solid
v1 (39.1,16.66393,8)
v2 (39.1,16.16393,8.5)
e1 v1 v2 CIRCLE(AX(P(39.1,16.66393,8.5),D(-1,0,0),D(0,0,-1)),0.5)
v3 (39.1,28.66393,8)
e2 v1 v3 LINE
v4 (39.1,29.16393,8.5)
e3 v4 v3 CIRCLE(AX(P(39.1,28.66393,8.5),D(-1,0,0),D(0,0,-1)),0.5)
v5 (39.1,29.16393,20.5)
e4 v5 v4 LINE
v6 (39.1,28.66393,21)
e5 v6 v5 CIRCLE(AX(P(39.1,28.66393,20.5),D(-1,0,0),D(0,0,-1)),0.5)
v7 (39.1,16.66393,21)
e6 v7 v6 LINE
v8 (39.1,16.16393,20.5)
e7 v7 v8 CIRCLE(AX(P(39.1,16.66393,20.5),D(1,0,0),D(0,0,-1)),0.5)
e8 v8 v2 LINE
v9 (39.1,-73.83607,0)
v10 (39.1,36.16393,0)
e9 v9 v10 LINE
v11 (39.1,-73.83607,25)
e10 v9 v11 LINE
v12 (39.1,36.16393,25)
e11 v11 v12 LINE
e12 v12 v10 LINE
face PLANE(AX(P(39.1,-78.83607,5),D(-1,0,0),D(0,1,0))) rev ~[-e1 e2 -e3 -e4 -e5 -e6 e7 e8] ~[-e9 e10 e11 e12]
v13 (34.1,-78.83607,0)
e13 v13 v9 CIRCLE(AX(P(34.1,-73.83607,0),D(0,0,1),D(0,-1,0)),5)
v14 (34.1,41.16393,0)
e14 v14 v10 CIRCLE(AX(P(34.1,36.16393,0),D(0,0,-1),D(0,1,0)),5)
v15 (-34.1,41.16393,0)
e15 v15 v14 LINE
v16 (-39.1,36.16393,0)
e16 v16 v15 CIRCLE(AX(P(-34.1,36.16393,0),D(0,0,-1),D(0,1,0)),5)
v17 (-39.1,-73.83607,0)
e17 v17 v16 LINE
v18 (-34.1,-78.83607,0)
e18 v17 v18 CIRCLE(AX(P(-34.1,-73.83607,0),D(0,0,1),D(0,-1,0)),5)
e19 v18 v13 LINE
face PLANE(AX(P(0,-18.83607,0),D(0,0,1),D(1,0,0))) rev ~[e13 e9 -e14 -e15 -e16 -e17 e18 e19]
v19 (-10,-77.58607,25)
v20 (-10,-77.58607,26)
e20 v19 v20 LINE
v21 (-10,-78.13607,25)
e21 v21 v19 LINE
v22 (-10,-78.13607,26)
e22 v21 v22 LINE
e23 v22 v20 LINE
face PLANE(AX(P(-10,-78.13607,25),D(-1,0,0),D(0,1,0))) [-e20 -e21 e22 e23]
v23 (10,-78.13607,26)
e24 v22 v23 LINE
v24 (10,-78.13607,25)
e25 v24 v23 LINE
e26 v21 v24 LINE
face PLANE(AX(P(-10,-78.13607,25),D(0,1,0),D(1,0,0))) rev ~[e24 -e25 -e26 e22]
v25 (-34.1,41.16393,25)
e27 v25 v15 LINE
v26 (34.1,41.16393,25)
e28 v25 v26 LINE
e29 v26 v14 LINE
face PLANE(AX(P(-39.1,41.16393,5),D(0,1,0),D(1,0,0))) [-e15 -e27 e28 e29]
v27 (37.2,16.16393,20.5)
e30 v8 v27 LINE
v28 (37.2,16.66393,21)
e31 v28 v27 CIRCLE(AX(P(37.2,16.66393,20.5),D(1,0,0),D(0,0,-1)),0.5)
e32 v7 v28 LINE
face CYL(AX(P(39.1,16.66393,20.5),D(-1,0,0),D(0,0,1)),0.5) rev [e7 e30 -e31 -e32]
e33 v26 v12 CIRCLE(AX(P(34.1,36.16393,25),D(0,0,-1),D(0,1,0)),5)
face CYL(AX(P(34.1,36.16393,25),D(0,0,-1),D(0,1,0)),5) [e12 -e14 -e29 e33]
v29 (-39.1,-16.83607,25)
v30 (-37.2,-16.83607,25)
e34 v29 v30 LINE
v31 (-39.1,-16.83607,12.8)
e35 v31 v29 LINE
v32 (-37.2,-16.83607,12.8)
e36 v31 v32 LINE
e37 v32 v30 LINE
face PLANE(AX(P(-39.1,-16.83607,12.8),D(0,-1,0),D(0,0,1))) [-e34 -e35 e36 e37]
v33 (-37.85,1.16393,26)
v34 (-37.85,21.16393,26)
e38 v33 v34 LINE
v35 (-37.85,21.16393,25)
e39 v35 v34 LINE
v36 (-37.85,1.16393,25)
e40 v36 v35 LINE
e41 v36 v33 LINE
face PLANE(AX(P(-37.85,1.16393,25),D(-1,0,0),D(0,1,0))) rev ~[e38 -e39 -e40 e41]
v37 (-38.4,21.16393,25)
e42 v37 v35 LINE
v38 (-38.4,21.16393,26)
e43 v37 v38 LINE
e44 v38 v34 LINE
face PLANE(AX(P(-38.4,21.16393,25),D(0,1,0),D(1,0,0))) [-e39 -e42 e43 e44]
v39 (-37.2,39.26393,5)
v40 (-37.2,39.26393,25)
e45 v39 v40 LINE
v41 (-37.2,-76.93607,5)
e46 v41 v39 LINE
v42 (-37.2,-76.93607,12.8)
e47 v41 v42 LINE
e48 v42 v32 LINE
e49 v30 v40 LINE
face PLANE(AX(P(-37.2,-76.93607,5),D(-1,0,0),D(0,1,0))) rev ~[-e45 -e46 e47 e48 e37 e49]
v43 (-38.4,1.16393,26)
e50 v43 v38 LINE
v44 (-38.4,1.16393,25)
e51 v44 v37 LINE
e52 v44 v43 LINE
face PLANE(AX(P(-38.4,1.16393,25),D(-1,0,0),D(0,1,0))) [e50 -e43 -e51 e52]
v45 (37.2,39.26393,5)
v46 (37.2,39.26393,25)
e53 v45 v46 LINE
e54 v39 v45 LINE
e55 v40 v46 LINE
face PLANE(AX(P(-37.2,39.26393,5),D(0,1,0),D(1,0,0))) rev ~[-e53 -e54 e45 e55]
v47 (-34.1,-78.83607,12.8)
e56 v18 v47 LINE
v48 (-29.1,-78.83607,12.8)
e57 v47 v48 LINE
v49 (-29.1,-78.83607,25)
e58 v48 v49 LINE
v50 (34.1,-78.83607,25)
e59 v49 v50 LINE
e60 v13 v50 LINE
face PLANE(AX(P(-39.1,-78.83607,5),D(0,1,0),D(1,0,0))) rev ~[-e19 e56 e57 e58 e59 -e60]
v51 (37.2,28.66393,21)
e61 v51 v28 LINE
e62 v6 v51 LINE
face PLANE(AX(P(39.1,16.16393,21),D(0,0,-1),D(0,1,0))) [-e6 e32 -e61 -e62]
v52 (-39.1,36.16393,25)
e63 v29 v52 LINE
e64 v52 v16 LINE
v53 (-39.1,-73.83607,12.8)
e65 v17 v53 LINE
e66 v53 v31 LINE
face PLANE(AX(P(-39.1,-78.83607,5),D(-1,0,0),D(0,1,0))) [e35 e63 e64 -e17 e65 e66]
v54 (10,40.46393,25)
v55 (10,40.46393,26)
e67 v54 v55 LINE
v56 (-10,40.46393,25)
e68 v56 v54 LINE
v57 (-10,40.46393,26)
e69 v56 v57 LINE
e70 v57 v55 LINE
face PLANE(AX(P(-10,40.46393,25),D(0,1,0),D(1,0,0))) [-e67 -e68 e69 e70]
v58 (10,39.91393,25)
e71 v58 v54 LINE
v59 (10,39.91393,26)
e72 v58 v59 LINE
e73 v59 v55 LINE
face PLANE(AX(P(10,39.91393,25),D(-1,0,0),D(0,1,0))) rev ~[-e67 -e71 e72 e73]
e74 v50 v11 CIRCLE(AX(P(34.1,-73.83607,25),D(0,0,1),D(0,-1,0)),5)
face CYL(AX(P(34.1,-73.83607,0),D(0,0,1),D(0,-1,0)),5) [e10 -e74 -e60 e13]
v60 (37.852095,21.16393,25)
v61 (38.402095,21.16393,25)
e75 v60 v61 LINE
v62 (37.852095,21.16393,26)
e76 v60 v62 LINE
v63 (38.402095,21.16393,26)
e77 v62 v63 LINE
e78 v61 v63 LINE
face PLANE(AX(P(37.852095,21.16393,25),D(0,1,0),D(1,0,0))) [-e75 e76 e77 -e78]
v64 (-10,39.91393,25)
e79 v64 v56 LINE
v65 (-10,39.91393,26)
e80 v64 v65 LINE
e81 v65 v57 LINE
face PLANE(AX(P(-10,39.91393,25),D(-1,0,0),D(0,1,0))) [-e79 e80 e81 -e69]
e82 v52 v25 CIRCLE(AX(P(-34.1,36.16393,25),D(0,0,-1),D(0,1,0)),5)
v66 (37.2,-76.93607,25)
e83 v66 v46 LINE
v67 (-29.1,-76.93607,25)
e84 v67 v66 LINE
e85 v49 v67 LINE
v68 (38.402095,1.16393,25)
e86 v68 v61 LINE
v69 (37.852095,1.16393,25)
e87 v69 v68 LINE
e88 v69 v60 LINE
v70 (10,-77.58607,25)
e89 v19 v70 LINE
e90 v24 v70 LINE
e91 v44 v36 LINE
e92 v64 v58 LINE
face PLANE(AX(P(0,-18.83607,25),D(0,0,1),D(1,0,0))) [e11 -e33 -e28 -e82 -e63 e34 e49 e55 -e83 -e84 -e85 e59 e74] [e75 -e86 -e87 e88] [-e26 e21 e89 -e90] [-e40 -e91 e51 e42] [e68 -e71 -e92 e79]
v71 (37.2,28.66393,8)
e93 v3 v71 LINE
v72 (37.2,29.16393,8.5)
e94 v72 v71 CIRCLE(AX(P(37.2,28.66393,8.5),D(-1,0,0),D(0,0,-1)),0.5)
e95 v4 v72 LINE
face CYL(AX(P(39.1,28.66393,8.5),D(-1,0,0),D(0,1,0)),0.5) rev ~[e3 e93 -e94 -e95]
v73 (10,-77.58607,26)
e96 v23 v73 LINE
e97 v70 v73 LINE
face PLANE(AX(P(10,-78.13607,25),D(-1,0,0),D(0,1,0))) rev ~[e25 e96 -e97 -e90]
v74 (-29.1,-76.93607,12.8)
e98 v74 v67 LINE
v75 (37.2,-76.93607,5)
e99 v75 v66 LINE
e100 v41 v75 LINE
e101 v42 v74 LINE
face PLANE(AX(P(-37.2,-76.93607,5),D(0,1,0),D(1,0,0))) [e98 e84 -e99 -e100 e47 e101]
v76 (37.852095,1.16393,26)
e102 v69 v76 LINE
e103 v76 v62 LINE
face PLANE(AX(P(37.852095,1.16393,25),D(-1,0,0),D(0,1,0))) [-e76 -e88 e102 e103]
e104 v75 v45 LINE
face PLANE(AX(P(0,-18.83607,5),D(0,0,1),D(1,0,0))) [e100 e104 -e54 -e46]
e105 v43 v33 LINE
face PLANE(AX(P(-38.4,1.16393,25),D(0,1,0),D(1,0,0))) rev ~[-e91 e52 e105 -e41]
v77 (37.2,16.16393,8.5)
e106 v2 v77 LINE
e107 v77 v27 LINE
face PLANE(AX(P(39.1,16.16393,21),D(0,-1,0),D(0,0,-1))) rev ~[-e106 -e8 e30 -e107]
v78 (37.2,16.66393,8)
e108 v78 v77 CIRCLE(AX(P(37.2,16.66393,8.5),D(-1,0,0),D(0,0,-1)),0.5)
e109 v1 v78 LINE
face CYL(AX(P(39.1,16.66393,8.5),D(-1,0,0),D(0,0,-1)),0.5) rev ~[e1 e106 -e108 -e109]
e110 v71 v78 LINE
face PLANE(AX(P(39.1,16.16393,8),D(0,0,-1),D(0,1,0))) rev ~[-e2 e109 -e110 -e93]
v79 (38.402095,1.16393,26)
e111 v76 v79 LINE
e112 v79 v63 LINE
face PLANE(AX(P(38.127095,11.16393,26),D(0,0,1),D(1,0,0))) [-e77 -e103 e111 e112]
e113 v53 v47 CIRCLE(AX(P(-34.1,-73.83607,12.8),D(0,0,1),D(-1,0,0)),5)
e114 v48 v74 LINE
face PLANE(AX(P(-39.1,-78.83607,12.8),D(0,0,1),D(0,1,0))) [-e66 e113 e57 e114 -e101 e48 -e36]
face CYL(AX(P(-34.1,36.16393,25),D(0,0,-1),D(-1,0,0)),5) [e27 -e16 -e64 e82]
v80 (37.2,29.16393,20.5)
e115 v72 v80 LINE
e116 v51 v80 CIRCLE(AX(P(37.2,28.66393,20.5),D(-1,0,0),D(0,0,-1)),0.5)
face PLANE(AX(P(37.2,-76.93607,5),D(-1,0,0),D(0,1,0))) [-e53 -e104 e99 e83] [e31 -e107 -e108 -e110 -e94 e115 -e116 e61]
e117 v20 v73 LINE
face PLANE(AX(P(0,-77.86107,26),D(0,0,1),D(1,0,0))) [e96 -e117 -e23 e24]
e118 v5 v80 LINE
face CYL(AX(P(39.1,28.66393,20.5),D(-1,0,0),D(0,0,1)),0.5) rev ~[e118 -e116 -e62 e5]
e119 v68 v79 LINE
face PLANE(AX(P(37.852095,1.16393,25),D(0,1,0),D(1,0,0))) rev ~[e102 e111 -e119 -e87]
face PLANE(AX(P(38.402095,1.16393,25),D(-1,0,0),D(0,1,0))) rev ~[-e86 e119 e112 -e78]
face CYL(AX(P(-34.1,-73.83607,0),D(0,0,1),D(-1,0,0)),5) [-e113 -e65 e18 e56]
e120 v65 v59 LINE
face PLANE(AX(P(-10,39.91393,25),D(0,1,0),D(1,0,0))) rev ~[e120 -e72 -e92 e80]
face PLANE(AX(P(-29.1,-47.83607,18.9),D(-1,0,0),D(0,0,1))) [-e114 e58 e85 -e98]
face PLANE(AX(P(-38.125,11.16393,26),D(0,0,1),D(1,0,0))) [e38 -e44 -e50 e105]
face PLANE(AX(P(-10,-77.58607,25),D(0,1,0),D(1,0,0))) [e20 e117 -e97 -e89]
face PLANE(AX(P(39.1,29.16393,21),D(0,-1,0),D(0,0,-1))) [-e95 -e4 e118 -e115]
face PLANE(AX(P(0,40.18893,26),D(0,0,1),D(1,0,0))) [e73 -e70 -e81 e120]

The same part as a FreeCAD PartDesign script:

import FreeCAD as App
import Part
import Sketcher

V = App.Vector
Q = App.Units.Quantity


def edges_at(feature, points):
    """Names of the edges that pass closest to the given points."""
    edges = feature.Shape.Edges
    near = lambda p: min(range(len(edges)), key=lambda i: edges[i].distToShape(Part.Vertex(*p))[0])
    return sorted({f"Edge{near(p) + 1}" for p in points})


def add_polygon(sketch, points):
    """Adds a closed chain of lines whose ends are joined by coincident constraints."""
    first, n = sketch.GeometryCount, len(points)
    for a, b in zip(points, points[1:] + points[:1]):
        sketch.addGeometry(Part.LineSegment(App.Vector(*a, 0), App.Vector(*b, 0)), False)
    for i in range(n):
        sketch.addConstraint(Sketcher.Constraint("Coincident", first + i, 2, first + (i + 1) % n, 1))

doc = App.newDocument("Part")
body = doc.addObject("PartDesign::Body", "Body")

# Sketch on XY plane
sketch1 = body.newObject("Sketcher::SketchObject", "Sketch")
sketch1.AttachmentSupport = (doc.getObject("XY_Plane"), [""])
sketch1.MapMode = "FlatFace"
add_polygon(sketch1, [(-39, 41), (-39, -79), (39, -79), (39, 41)])  # lines 0-3
sketch1.addConstraint([
    Sketcher.Constraint("Vertical", 0),
    Sketcher.Constraint("Horizontal", 1),
    Sketcher.Constraint("Vertical", 2),
    Sketcher.Constraint("Horizontal", 3),
    Sketcher.Constraint("DistanceY", 0, 2, 0, 1, Q("120 mm")),
    Sketcher.Constraint("DistanceX", 1, 1, 1, 2, Q("78.2 mm")),
    Sketcher.Constraint("DistanceX", 0, 2, -1, 1, Q("39.1 mm")),
    Sketcher.Constraint("DistanceY", 0, 2, -1, 1, Q("78.83607 mm")),
])
pad1 = body.newObject("PartDesign::Pad", "Pad")
pad1.Profile = sketch1
pad1.Length = 5

# Sketch on XY plane
sketch2 = body.newObject("Sketcher::SketchObject", "Sketch001")
sketch2.AttachmentSupport = (doc.getObject("XY_Plane"), [""])
sketch2.MapMode = "FlatFace"
sketch2.AttachmentOffset = App.Placement(V(0, 0, 5), App.Rotation())
add_polygon(sketch2, [(-39, 41), (-39, -79), (39, -79), (39, 41)])  # lines 0-3
add_polygon(sketch2, [(37, -77), (-37, -77), (-37, 39), (37, 39)])  # lines 4-7
sketch2.addConstraint([
    Sketcher.Constraint("Vertical", 0),
    Sketcher.Constraint("Horizontal", 1),
    Sketcher.Constraint("Vertical", 2),
    Sketcher.Constraint("Horizontal", 3),
    Sketcher.Constraint("Horizontal", 4),
    Sketcher.Constraint("Vertical", 5),
    Sketcher.Constraint("Horizontal", 6),
    Sketcher.Constraint("Vertical", 7),
    Sketcher.Constraint("DistanceY", 0, 2, 0, 1, Q("120 mm")),
    Sketcher.Constraint("DistanceX", 1, 1, 1, 2, Q("78.2 mm")),
    Sketcher.Constraint("DistanceX", 4, 2, 4, 1, Q("74.4 mm")),
    Sketcher.Constraint("DistanceY", 5, 1, 5, 2, Q("116.2 mm")),
    Sketcher.Constraint("DistanceX", 0, 2, -1, 1, Q("39.1 mm")),
    Sketcher.Constraint("DistanceX", 4, 2, -1, 1, Q("37.2 mm")),
    Sketcher.Constraint("DistanceY", 0, 2, 4, 2, Q("1.9 mm")),
    Sketcher.Constraint("DistanceY", 0, 2, -1, 1, Q("78.83607 mm")),
])
pad2 = body.newObject("PartDesign::Pad", "Pad001")
pad2.Profile = sketch2
pad2.Length = 20

# Sketch on XY plane
sketch3 = body.newObject("Sketcher::SketchObject", "Sketch002")
sketch3.AttachmentSupport = (doc.getObject("XY_Plane"), [""])
sketch3.MapMode = "FlatFace"
sketch3.AttachmentOffset = App.Placement(V(0, 0, 25), App.Rotation())
add_polygon(sketch3, [(-38.4, 21.2), (-38.4, 1.2), (-37.9, 1.2), (-37.9, 21.2)])  # lines 0-3
add_polygon(sketch3, [(37.9, 21.2), (37.9, 1.2), (38.4, 1.2), (38.4, 21.2)])  # lines 4-7
add_polygon(sketch3, [(-10, 40.5), (-10, 39.9), (10, 39.9), (10, 40.5)])  # lines 8-11
add_polygon(sketch3, [(-10, -77.6), (-10, -78.1), (10, -78.1), (10, -77.6)])  # lines 12-15
sketch3.addConstraint([
    Sketcher.Constraint("Vertical", 0),
    Sketcher.Constraint("Horizontal", 1),
    Sketcher.Constraint("Vertical", 2),
    Sketcher.Constraint("Horizontal", 3),
    Sketcher.Constraint("Vertical", 4),
    Sketcher.Constraint("Horizontal", 5),
    Sketcher.Constraint("Vertical", 6),
    Sketcher.Constraint("Horizontal", 7),
    Sketcher.Constraint("Vertical", 8),
    Sketcher.Constraint("Horizontal", 9),
    Sketcher.Constraint("Vertical", 10),
    Sketcher.Constraint("Horizontal", 11),
    Sketcher.Constraint("Vertical", 12),
    Sketcher.Constraint("Horizontal", 13),
    Sketcher.Constraint("Vertical", 14),
    Sketcher.Constraint("Horizontal", 15),
    Sketcher.Constraint("Horizontal", 1, 2, 4, 2),
    Sketcher.Constraint("Horizontal", 3, 2, 6, 2),
    Sketcher.Constraint("Vertical", 11, 2, 12, 2),
    Sketcher.Constraint("Vertical", 10, 2, 13, 2),
    Sketcher.Constraint("Equal", 3, 5),
    Sketcher.Constraint("Equal", 15, 0),
    Sketcher.Constraint("Equal", 7, 8),
    Sketcher.Constraint("Equal", 10, 12),
    Sketcher.Constraint("DistanceX", 9, 1, 9, 2, Q("20 mm")),
    Sketcher.Constraint("DistanceX", 8, 2, -1, 1, Q("10 mm")),
    Sketcher.Constraint("DistanceX", 1, 1, 1, 2, Q("0.55 mm")),
    Sketcher.Constraint("DistanceX", 0, 2, -1, 1, Q("38.4 mm")),
    Sketcher.Constraint("DistanceY", 7, 2, 10, 2, Q("19.3 mm")),
    Sketcher.Constraint("DistanceY", 12, 2, 1, 2, Q("79.3 mm")),
    Sketcher.Constraint("DistanceY", -1, 1, 0, 2, Q("1.16393 mm")),
    Sketcher.Constraint("DistanceX", -1, 1, 4, 2, Q("37.852095 mm")),
])
pad3 = body.newObject("PartDesign::Pad", "Pad002")
pad3.Profile = sketch3
pad3.Length = 1

# Sketch on YZ plane
sketch4 = body.newObject("Sketcher::SketchObject", "Sketch003")
sketch4.AttachmentSupport = (doc.getObject("YZ_Plane"), [""])
sketch4.MapMode = "FlatFace"
sketch4.AttachmentOffset = App.Placement(V(0, 0, 39.1), App.Rotation())
add_polygon(sketch4, [(29, 21), (16, 21), (16, 8), (29, 8)])  # lines 0-3
sketch4.addConstraint([
    Sketcher.Constraint("Horizontal", 0),
    Sketcher.Constraint("Vertical", 1),
    Sketcher.Constraint("Horizontal", 2),
    Sketcher.Constraint("Vertical", 3),
    Sketcher.Constraint("Equal", 2, 1),
    Sketcher.Constraint("DistanceX", 0, 2, 0, 1, Q("13 mm")),
    Sketcher.Constraint("DistanceY", -1, 1, 0, 2, Q("21 mm")),
    Sketcher.Constraint("DistanceX", -1, 1, 0, 2, Q("16.16393 mm")),
])
pocket1 = body.newObject("PartDesign::Pocket", "Pocket")
pocket1.Profile = sketch4
pocket1.Length = 4
doc.recompute()

fillet = body.newObject("PartDesign::Fillet", "Fillet")
fillet.Base = (pocket1, edges_at(pocket1, [
    (-39.1, 41.164, 12.5),
    (39.1, 41.164, 12.5),
    (39.1, -78.836, 12.5),
    (-39.1, -78.836, 12.5),
]))
fillet.Radius = 5
doc.recompute()

fillet2 = body.newObject("PartDesign::Fillet", "Fillet001")
fillet2.Base = (fillet, edges_at(fillet, [
    (38.15, 16.164, 21),
    (38.15, 29.164, 21),
    (38.15, 29.164, 8),
    (38.15, 16.164, 8),
]))
fillet2.Radius = 0.5

# Sketch on YZ plane
sketch5 = body.newObject("Sketcher::SketchObject", "Sketch004")
sketch5.AttachmentSupport = (doc.getObject("YZ_Plane"), [""])
sketch5.MapMode = "FlatFace"
sketch5.AttachmentOffset = App.Placement(V(0, 0, -39.1), App.Rotation())
add_polygon(sketch5, [(-17, 13), (-79, 13), (-79, 25), (-17, 25)])  # lines 0-3
sketch5.addConstraint([
    Sketcher.Constraint("Horizontal", 0),
    Sketcher.Constraint("Vertical", 1),
    Sketcher.Constraint("Horizontal", 2),
    Sketcher.Constraint("Vertical", 3),
    Sketcher.Constraint("DistanceX", 0, 2, 0, 1, Q("62 mm")),
    Sketcher.Constraint("DistanceY", 1, 1, 1, 2, Q("12.2 mm")),
    Sketcher.Constraint("DistanceY", -1, 1, 1, 2, Q("25 mm")),
    Sketcher.Constraint("DistanceX", 0, 2, -1, 1, Q("78.83607 mm")),
])
pocket2 = body.newObject("PartDesign::Pocket", "Pocket001")
pocket2.Profile = sketch5
pocket2.Length = 10
pocket2.Reversed = True

doc.recompute()
